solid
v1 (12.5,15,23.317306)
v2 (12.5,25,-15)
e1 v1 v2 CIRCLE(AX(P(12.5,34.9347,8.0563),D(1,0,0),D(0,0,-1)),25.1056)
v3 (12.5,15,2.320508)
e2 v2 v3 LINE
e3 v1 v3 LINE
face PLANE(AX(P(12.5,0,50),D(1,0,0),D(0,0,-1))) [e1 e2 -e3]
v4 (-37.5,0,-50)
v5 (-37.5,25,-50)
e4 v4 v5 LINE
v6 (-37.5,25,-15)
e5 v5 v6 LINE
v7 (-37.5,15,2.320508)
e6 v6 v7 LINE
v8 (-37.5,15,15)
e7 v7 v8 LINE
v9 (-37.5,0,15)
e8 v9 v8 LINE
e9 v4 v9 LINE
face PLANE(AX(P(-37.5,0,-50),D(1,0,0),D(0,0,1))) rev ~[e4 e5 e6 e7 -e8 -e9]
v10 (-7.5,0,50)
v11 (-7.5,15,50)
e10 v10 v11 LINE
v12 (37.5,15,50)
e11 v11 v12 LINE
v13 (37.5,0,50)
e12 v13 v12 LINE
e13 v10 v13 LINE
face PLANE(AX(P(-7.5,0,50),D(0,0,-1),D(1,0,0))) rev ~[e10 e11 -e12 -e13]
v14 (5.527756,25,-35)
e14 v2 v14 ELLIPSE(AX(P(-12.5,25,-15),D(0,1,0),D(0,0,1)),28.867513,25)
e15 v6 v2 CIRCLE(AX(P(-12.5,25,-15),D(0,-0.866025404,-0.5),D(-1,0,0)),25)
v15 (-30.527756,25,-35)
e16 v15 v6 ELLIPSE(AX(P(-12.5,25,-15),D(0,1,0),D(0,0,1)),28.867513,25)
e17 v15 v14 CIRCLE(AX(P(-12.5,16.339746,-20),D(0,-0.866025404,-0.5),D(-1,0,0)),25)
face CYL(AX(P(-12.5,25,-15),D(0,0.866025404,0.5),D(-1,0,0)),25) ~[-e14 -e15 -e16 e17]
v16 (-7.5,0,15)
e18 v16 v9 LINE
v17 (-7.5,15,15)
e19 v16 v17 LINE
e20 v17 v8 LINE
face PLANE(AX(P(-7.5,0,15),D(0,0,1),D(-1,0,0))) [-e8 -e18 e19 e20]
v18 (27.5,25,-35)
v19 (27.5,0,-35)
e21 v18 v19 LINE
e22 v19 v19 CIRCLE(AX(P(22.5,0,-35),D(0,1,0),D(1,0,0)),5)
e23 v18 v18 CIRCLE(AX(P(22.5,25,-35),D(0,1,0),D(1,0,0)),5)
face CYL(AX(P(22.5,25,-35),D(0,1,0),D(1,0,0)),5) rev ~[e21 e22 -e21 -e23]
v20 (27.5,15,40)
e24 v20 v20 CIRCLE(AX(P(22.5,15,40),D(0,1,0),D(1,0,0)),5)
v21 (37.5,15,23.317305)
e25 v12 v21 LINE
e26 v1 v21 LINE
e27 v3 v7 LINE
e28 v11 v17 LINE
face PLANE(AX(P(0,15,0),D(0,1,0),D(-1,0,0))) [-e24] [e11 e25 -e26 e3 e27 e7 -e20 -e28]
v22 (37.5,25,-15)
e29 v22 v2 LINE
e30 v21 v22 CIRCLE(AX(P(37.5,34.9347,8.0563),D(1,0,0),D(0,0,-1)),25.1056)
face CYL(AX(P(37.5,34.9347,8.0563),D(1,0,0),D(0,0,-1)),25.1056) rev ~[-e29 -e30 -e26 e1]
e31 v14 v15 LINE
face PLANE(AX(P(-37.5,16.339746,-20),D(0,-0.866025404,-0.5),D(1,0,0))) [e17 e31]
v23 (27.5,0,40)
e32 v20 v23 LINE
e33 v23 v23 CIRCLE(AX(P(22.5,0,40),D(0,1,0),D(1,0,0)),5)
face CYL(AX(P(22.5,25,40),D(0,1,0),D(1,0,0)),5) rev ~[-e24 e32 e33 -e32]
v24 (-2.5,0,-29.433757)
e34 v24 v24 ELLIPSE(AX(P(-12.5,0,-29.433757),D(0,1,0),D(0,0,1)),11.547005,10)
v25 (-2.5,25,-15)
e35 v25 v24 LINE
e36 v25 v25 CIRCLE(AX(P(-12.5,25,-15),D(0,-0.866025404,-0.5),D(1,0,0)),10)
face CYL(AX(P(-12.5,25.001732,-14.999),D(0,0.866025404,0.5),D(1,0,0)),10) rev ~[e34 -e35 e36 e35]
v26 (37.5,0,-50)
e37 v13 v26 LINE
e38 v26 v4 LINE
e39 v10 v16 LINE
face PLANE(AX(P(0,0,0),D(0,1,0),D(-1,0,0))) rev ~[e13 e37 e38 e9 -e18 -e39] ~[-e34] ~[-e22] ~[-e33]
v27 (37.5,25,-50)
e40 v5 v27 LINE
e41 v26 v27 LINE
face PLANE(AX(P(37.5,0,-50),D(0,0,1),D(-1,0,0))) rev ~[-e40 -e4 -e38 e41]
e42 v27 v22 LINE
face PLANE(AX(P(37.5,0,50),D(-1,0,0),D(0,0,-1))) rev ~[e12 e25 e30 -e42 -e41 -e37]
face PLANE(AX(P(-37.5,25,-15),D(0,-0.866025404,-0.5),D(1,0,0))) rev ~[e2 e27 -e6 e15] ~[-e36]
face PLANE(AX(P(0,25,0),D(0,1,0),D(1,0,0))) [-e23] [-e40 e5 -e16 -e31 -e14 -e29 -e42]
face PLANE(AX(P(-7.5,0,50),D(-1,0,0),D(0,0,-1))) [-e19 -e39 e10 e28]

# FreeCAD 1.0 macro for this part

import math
import FreeCAD as App
import Part
import Sketcher

V = App.Vector


def add_polygon(sketch, points):
    """Adds a closed chain of lines whose ends are joined by coincident constraints."""
    first, n = sketch.GeometryCount, len(points)
    for a, b in zip(points, points[1:] + points[:1]):
        sketch.addGeometry(Part.LineSegment(App.Vector(*a, 0), App.Vector(*b, 0)), False)
    for i in range(n):
        sketch.addConstraint(Sketcher.Constraint("Coincident", first + i, 2, first + (i + 1) % n, 1))

doc = App.newDocument("Part")
params = doc.addObject("Spreadsheet::Sheet", "Params")
for row, (alias, value) in enumerate([
    ("sketch1_width", "75 mm"),
    ("sketch1_width2", "30 mm"),
    ("sketch1_height", "100 mm"),
    ("sketch1_height2", "35 mm"),
    ("pad1_length", "15 mm"),
    ("sketch2_width", "75 mm"),
    ("sketch2_height", "35 mm"),
    ("pad2_length", "10 mm"),
    ("sketch3_diameter", "20 mm"),
    ("sketch3_radius", "25 mm"),
    ("pad3_length", "10 mm"),
    ("sketch4_diameter", "20 mm"),
    ("pocket1_length", "40 mm"),
    ("sketch5_width", "10 mm"),
    ("pad4_length", "25 mm"),
    ("pocket2_length", "25 mm"),
    ("sketch7_diameter", "10 mm"),
    ("pocket3_length", "25 mm"),
], start=1):
    params.set(f"A{row}", alias)
    params.set(f"B{row}", "=" + value)
    params.setAlias(f"B{row}", alias)

body = doc.addObject("PartDesign::Body", "Body")

# Sketch on XZ plane
sketch1 = doc.addObject("Sketcher::SketchObject", "Sketch")
body.addObject(sketch1)
sketch1.AttachmentSupport = (doc.XZ_Plane, [""])
sketch1.MapMode = "FlatFace"
add_polygon(sketch1, [(38, 50), (38, -50), (-38, -50), (-38, 15), (-8, 15), (-8, 50)])  # lines 0-5
sketch1.addConstraint([
    Sketcher.Constraint("Vertical", 0),
    Sketcher.Constraint("Horizontal", 1),
    Sketcher.Constraint("Vertical", 2),
    Sketcher.Constraint("Horizontal", 3),
    Sketcher.Constraint("Vertical", 4),
    Sketcher.Constraint("Horizontal", 5),
    Sketcher.Constraint("Symmetric", 1, 2, 5, 2, -1, 1),
    Sketcher.Constraint("DistanceX", 1, 2, 1, 1, 75.0),
    Sketcher.Constraint("DistanceX", 3, 1, 3, 2, 30.0),
    Sketcher.Constraint("DistanceY", 0, 2, 0, 1, 100.0),
    Sketcher.Constraint("DistanceY", 4, 1, 4, 2, 35.0),
])
sketch1.setExpression("Constraints[13]", "Params.sketch1_width")
sketch1.setExpression("Constraints[14]", "Params.sketch1_width2")
sketch1.setExpression("Constraints[15]", "Params.sketch1_height")
sketch1.setExpression("Constraints[16]", "Params.sketch1_height2")
pad1 = doc.addObject("PartDesign::Pad", "Pad")
body.addObject(pad1)
pad1.Profile = sketch1
pad1.setExpression("Length", "Params.pad1_length")
pad1.Reversed = True

# Sketch on XZ plane
sketch2 = doc.addObject("Sketcher::SketchObject", "Sketch001")
body.addObject(sketch2)
sketch2.AttachmentSupport = (doc.XZ_Plane, [""])
sketch2.MapMode = "FlatFace"
sketch2.AttachmentOffset = App.Placement(V(0, 0, -15), App.Rotation())
add_polygon(sketch2, [(38, -50), (-38, -50), (-38, -15), (38, -15)])  # lines 0-3
sketch2.addConstraint([
    Sketcher.Constraint("Horizontal", 0),
    Sketcher.Constraint("Vertical", 1),
    Sketcher.Constraint("Horizontal", 2),
    Sketcher.Constraint("Vertical", 3),
    Sketcher.Constraint("DistanceX", 0, 2, 0, 1, 75.0),
    Sketcher.Constraint("DistanceY", 1, 1, 1, 2, 35.0),
    Sketcher.Constraint("DistanceY", 0, 2, -1, 1, 50.0),
    Sketcher.Constraint("DistanceX", 0, 2, -1, 1, 37.5),
])
sketch2.setExpression("Constraints[8]", "Params.sketch2_width")
sketch2.setExpression("Constraints[9]", "Params.sketch2_height")
pad2 = doc.addObject("PartDesign::Pad", "Pad001")
body.addObject(pad2)
pad2.Profile = sketch2
pad2.setExpression("Length", "Params.pad2_length")
pad2.Reversed = True

# Sketch on an angled plane
sketch3 = doc.addObject("Sketcher::SketchObject", "Sketch002")
body.addObject(sketch3)
sketch3.Placement = App.Placement(V(-37.5, 25, -15), App.Rotation(V(1, 0, 0), V(0, -0.5, 0.866025404), V(0, -0.866025404, -0.5), "ZXY"))
sketch3.addGeometry([
    Part.ArcOfCircle(Part.Circle(V(25, 0, 0), V(0, 0, 1), 25), math.radians(180), math.radians(360)),  # 0
    Part.LineSegment(V(50, 0, 0), V(50, 31, 0)),  # 1
    Part.LineSegment(V(50, 31, 0), V(0, 31, 0)),  # 2
    Part.LineSegment(V(0, 31, 0), V(0, 0, 0)),  # 3
    Part.Circle(V(25, 0, 0), V(0, 0, 1), 10),  # 4
], False)
sketch3.addConstraint([
    Sketcher.Constraint("Tangent", 0, 2, 1, 1),
    Sketcher.Constraint("Coincident", 1, 2, 2, 1),
    Sketcher.Constraint("Coincident", 2, 2, 3, 1),
    Sketcher.Constraint("Tangent", 3, 2, 0, 1),
    Sketcher.Constraint("Vertical", 1),
    Sketcher.Constraint("Horizontal", 2),
    Sketcher.Constraint("Vertical", 3),
    Sketcher.Constraint("Coincident", 3, 2, -1, 1),
    Sketcher.Constraint("Coincident", 4, 3, 0, 3),
    Sketcher.Constraint("Diameter", 4, 20.0),
    Sketcher.Constraint("Radius", 0, 25.0),
    Sketcher.Constraint("DistanceY", 1, 1, 1, 2, 30.9808),
])
sketch3.setExpression("Constraints[9]", "Params.sketch3_diameter")
sketch3.setExpression("Constraints[10]", "Params.sketch3_radius")
pad3 = doc.addObject("PartDesign::Pad", "Pad002")
body.addObject(pad3)
pad3.Profile = sketch3
pad3.setExpression("Length", "Params.pad3_length")

# Sketch on an angled plane
sketch4 = doc.addObject("Sketcher::SketchObject", "Sketch003")
body.addObject(sketch4)
sketch4.Placement = App.Placement(V(-37.5, 25, -15), App.Rotation(V(1, 0, 0), V(0, 0.5, -0.866025404), V(0, 0.866025404, 0.5), "ZXY"))
sketch4.addGeometry(Part.Circle(V(25, 0, 0), V(0, 0, 1), 10), False)
sketch4.addConstraint([
    Sketcher.Constraint("PointOnObject", 0, 3, -1),
    Sketcher.Constraint("Diameter", 0, 20.0),
    Sketcher.Constraint("DistanceX", -1, 1, 0, 3, 25.0),
])
sketch4.setExpression("Constraints[1]", "Params.sketch4_diameter")
pocket1 = doc.addObject("PartDesign::Pocket", "Pocket")
body.addObject(pocket1)
pocket1.Profile = sketch4
pocket1.setExpression("Length", "Params.pocket1_length")

# Sketch on YZ plane
sketch5 = doc.addObject("Sketcher::SketchObject", "Sketch004")
body.addObject(sketch5)
sketch5.AttachmentSupport = (doc.YZ_Plane, [""])
sketch5.MapMode = "FlatFace"
sketch5.AttachmentOffset = App.Placement(V(0, 0, 37.5), App.Rotation())
sketch5.addGeometry([
    Part.ArcOfCircle(Part.Circle(V(35, 8, 0), V(0, 0, 1), 25), math.radians(-173), math.radians(-143)),  # 0
    Part.LineSegment(V(15, -7, 0), V(15, -15, 0)),  # 1
    Part.LineSegment(V(15, -15, 0), V(25, -15, 0)),  # 2
    Part.ArcOfCircle(Part.Circle(V(35, 8, 0), V(0, 0, 1), 25), math.radians(-113), math.radians(-53)),  # 3
    Part.ArcOfCircle(Part.Circle(V(35, 8, 0), V(0, 0, 1), 25), math.radians(-53), math.radians(173)),  # 4
    Part.LineSegment(V(10, 11, 0), V(10, 5, 0)),  # 5
], False)
sketch5.addConstraint([
    Sketcher.Constraint("Coincident", 0, 2, 1, 1),
    Sketcher.Constraint("Coincident", 1, 2, 2, 1),
    Sketcher.Constraint("Coincident", 2, 2, 3, 1),
    Sketcher.Constraint("Tangent", 3, 2, 4, 1),
    Sketcher.Constraint("Coincident", 4, 2, 5, 1),
    Sketcher.Constraint("Coincident", 5, 2, 0, 1),
    Sketcher.Constraint("Vertical", 1),
    Sketcher.Constraint("Horizontal", 2),
    Sketcher.Constraint("Vertical", 5),
    Sketcher.Constraint("Coincident", 3, 3, 0, 3),
    Sketcher.Constraint("Equal", 0, 3),
    Sketcher.Constraint("Equal", 3, 4),
    Sketcher.Constraint("DistanceX", 4, 2, 0, 2, 5.0),
    Sketcher.Constraint("DistanceX", 2, 1, 2, 2, 10.0),
    Sketcher.Constraint("DistanceX", -1, 1, 0, 2, 15.0),
    Sketcher.Constraint("DistanceY", 1, 2, -1, 1, 15.0),
    Sketcher.Constraint("DistanceX", 0, 3, 3, 2, 15.0),
    Sketcher.Constraint("Radius", 0, 25.1056),
    Sketcher.Constraint("DistanceY", 1, 2, 1, 1, 7.7953),
])
sketch5.setExpression("Constraints[13]", "Params.sketch5_width")
pad4 = doc.addObject("PartDesign::Pad", "Pad003")
body.addObject(pad4)
pad4.Profile = sketch5
pad4.setExpression("Length", "Params.pad4_length")
pad4.Reversed = True

# Sketch on YZ plane
sketch6 = doc.addObject("Sketcher::SketchObject", "Sketch005")
body.addObject(sketch6)
sketch6.AttachmentSupport = (doc.YZ_Plane, [""])
sketch6.MapMode = "FlatFace"
sketch6.AttachmentOffset = App.Placement(V(0, 0, 37.5), App.Rotation())
sketch6.addGeometry([
    Part.ArcOfCircle(Part.Circle(V(35, 8, 0), V(0, 0, 1), 25), math.radians(143), math.radians(247)),
    Part.ArcOfCircle(Part.Circle(V(35, 8, 0), V(0, 0, 1), 25), math.radians(-113), math.radians(143)),
], False)
sketch6.addConstraint([
    Sketcher.Constraint("Tangent", 0, 1, 1, 2),
    Sketcher.Constraint("Coincident", 1, 1, 0, 2),
    Sketcher.Constraint("DistanceX", -1, 1, 0, 1, 15.0),
    Sketcher.Constraint("DistanceX", -1, 1, 1, 1, 25.0),
    Sketcher.Constraint("DistanceY", 1, 1, -1, 1, 15.0),
    Sketcher.Constraint("Radius", 0, 25.1056),
    Sketcher.Constraint("DistanceY", 0, 3, 0, 1, 15.261),
])
pocket2 = doc.addObject("PartDesign::Pocket", "Pocket001")
body.addObject(pocket2)
pocket2.Profile = sketch6
pocket2.setExpression("Length", "Params.pocket2_length")

# Sketch on XZ plane
sketch7 = doc.addObject("Sketcher::SketchObject", "Sketch006")
body.addObject(sketch7)
sketch7.AttachmentSupport = (doc.XZ_Plane, [""])
sketch7.MapMode = "FlatFace"
sketch7.AttachmentOffset = App.Placement(V(0, 0, -25), App.Rotation())
sketch7.addGeometry([
    Part.Circle(V(22, -35, 0), V(0, 0, 1), 5),
    Part.Circle(V(22, 40, 0), V(0, 0, 1), 5),
], False)
sketch7.addConstraint([
    Sketcher.Constraint("Equal", 0, 1),
    Sketcher.Constraint("Vertical", 0, 3, 1, 3),
    Sketcher.Constraint("Diameter", 0, 10.0),
    Sketcher.Constraint("DistanceY", 0, 3, -1, 1, 35.0),
    Sketcher.Constraint("DistanceY", -1, 1, 1, 3, 40.0),
    Sketcher.Constraint("DistanceX", -1, 1, 0, 3, 22.5),
])
sketch7.setExpression("Constraints[2]", "Params.sketch7_diameter")
pocket3 = doc.addObject("PartDesign::Pocket", "Pocket002")
body.addObject(pocket3)
pocket3.Profile = sketch7
pocket3.setExpression("Length", "Params.pocket3_length")
pocket3.Reversed = True

doc.recompute()
